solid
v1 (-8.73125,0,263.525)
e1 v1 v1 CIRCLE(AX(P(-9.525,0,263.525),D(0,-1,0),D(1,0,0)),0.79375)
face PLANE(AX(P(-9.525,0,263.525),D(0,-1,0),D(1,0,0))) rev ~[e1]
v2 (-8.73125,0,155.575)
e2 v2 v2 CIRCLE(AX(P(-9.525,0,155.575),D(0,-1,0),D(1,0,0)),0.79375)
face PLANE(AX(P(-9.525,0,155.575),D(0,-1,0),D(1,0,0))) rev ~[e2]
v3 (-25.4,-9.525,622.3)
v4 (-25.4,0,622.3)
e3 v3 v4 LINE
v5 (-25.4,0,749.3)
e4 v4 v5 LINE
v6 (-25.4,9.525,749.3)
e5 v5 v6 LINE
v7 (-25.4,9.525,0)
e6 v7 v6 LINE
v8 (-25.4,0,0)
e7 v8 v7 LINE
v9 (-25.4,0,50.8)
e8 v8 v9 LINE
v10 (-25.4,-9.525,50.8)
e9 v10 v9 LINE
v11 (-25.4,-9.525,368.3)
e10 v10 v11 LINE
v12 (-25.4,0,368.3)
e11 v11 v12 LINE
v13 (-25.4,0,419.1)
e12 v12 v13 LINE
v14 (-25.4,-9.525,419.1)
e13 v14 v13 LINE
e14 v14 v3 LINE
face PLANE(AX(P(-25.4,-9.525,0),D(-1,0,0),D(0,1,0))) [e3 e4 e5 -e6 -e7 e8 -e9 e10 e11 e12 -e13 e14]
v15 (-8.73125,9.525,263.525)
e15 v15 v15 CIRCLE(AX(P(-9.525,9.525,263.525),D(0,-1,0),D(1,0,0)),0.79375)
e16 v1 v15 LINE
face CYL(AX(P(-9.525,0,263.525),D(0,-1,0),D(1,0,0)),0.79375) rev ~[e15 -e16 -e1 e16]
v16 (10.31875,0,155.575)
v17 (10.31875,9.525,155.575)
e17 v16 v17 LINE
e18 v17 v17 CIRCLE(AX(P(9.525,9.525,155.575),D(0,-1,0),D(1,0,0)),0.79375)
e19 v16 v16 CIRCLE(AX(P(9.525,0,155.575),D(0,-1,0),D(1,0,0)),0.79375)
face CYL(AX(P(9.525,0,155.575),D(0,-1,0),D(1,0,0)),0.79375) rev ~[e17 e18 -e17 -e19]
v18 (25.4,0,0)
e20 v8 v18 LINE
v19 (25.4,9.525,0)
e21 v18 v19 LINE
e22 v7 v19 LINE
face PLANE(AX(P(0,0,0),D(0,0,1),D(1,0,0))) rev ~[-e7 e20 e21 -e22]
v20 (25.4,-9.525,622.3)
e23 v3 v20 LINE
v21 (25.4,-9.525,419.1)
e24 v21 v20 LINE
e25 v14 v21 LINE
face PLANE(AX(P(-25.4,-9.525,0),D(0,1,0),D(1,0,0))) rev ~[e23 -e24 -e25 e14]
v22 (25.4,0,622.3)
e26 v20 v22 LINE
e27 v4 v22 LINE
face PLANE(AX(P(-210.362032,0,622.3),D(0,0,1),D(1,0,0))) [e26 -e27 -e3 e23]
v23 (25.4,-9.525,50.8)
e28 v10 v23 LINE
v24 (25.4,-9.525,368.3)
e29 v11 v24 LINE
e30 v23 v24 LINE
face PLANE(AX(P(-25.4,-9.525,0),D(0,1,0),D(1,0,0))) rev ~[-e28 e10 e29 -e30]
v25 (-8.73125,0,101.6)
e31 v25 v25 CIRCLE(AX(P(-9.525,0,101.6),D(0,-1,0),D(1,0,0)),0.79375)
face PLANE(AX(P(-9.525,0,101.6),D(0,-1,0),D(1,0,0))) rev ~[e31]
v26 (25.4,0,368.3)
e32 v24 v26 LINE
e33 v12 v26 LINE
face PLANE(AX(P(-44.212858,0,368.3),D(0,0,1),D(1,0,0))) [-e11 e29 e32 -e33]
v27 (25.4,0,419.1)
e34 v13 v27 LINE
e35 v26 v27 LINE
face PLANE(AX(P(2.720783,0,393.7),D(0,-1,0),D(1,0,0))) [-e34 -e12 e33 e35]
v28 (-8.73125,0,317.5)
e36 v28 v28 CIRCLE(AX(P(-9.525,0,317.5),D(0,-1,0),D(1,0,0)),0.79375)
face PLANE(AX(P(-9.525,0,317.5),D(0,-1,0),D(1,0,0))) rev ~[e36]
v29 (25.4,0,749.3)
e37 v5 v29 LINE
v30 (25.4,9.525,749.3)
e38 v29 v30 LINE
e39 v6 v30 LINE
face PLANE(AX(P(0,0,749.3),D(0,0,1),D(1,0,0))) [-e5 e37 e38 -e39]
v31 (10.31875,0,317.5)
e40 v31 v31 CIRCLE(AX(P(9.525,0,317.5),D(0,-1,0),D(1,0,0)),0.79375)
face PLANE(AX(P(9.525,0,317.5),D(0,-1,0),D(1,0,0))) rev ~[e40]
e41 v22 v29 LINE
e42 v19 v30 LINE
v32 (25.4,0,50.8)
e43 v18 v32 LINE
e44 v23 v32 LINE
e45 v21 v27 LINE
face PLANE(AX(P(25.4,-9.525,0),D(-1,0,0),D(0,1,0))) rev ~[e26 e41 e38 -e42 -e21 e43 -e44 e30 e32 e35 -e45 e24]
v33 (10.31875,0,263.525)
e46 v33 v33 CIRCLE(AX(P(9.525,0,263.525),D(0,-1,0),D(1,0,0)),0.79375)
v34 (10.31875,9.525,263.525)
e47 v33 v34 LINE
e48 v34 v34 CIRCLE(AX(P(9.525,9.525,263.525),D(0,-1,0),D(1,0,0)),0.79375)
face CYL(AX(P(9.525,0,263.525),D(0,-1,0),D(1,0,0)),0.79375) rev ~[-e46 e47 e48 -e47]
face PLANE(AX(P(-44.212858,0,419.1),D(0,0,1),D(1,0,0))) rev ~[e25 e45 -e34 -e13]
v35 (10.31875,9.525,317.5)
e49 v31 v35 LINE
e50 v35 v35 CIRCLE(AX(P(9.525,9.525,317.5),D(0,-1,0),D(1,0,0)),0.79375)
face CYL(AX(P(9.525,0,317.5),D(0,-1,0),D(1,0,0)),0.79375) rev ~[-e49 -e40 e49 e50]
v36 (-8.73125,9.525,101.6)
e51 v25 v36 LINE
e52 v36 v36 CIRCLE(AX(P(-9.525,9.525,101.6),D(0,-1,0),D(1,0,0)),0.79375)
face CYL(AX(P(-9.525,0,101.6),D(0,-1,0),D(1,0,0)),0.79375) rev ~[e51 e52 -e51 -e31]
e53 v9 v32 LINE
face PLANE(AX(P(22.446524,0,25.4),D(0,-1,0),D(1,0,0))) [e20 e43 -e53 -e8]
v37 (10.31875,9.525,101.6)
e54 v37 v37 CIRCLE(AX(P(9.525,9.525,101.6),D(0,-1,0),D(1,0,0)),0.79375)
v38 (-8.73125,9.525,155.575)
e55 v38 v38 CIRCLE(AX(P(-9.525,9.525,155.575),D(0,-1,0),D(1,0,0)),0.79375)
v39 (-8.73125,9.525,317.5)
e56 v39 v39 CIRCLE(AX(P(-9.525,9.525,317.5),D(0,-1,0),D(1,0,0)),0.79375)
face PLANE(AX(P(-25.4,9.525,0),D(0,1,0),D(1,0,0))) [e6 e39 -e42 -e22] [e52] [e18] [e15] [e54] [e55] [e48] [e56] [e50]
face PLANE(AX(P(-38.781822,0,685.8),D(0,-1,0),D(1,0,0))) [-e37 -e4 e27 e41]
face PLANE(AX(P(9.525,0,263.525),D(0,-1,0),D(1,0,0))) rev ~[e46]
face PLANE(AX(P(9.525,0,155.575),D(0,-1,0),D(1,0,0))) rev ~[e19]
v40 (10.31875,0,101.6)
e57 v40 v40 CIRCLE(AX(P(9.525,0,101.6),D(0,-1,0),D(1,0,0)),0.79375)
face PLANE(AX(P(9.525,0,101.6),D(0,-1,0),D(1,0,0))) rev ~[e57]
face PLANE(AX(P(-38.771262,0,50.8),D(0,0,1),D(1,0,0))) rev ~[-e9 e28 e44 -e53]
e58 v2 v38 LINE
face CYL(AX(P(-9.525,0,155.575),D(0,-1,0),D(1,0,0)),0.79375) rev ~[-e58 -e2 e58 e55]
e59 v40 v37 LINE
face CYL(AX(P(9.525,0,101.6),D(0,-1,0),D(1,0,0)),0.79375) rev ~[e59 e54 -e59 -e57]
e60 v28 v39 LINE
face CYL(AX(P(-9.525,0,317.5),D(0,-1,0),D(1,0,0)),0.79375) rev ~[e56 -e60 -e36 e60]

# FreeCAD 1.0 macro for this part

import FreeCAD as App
import Part
import Sketcher
Q = App.Units.Quantity


def add_polygon(sketch, points):
    """Adds a closed chain of lines whose ends are joined by coincident constraints."""
    first, n = sketch.GeometryCount, len(points)
    for a, b in zip(points, points[1:] + points[:1]):
        sketch.addGeometry(Part.LineSegment(App.Vector(*a, 0), App.Vector(*b, 0)), False)
    for i in range(n):
        sketch.addConstraint(Sketcher.Constraint("Coincident", first + i, 2, first + (i + 1) % n, 1))

doc = App.newDocument("Part")
body = doc.addObject("PartDesign::Body", "Body")

sketch1 = body.newObject("Sketcher::SketchObject", "Sketch")
sketch1.AttachmentSupport = (doc.getObject("XY_Plane"), [""])
sketch1.MapMode = "FlatFace"
add_polygon(sketch1, [(-25, 10), (-25, -10), (25, -10), (25, 10)])
sketch1.addConstraint([
    Sketcher.Constraint("Vertical", 0),
    Sketcher.Constraint("Horizontal", 1),
    Sketcher.Constraint("Vertical", 2),
    Sketcher.Constraint("Horizontal", 3),
    Sketcher.Constraint("Symmetric", 0, 2, 2, 2, -1, 1),
    Sketcher.Constraint("DistanceX", 1, 1, 1, 2, Q("2 in")),
    Sketcher.Constraint("DistanceY", 0, 2, 0, 1, Q("0.75 in")),
])
pad1 = body.newObject("PartDesign::Pad", "Pad")
pad1.Profile = sketch1
pad1.Length = Q("29.5 in")

sketch2 = body.newObject("Sketcher::SketchObject", "Sketch001")
sketch2.AttachmentSupport = (doc.getObject("XZ_Plane"), [""])
sketch2.MapMode = "FlatFace"
add_polygon(sketch2, [(-39, 51), (-39, 0), (84, 0), (84, 51)])
add_polygon(sketch2, [(-44, 419), (-44, 368), (50, 368), (50, 419)])
add_polygon(sketch2, [(-210, 749), (-210, 622), (133, 622), (133, 749)])
sketch2.addConstraint([
    Sketcher.Constraint("Vertical", 0),
    Sketcher.Constraint("Horizontal", 1),
    Sketcher.Constraint("Vertical", 2),
    Sketcher.Constraint("Horizontal", 3),
    Sketcher.Constraint("Vertical", 4),
    Sketcher.Constraint("Horizontal", 5),
    Sketcher.Constraint("Vertical", 6),
    Sketcher.Constraint("Horizontal", 7),
    Sketcher.Constraint("Vertical", 8),
    Sketcher.Constraint("Horizontal", 9),
    Sketcher.Constraint("Vertical", 10),
    Sketcher.Constraint("Horizontal", 11),
    Sketcher.Constraint("PointOnObject", 0, 2, -1),
    Sketcher.Constraint("Equal", 2, 4),
    Sketcher.Constraint("DistanceY", 0, 2, 0, 1, Q("2 in")),
    Sketcher.Constraint("DistanceY", 8, 2, 8, 1, Q("5 in")),
    Sketcher.Constraint("DistanceY", 7, 2, 8, 2, Q("8 in")),
    Sketcher.Constraint("DistanceY", -1, 1, 4, 2, Q("14.5 in")),
    Sketcher.Constraint("DistanceX", 5, 1, 5, 2, 93.867282),
    Sketcher.Constraint("DistanceX", 9, 1, 9, 2, 343.160421),
    Sketcher.Constraint("DistanceX", 1, 1, 1, 2, 122.435573),
    Sketcher.Constraint("DistanceX", -1, 1, 1, 2, 83.66431),
    Sketcher.Constraint("DistanceX", -1, 1, 9, 2, 132.798388),
    Sketcher.Constraint("DistanceX", 4, 2, 2, 2, 127.877168),
])
pocket1 = body.newObject("PartDesign::Pocket", "Pocket")
pocket1.Profile = sketch2
pocket1.Length = Q("1 in")
pocket1.Reversed = True

sketch3 = body.newObject("Sketcher::SketchObject", "Sketch002")
sketch3.AttachmentSupport = (doc.getObject("XZ_Plane"), [""])
sketch3.MapMode = "FlatFace"
sketch3.addGeometry([
    Part.Circle(App.Vector(9.5, 101.6, 0), App.Vector(0, 0, 1), 0.8),
    Part.Circle(App.Vector(9.5, 155.6, 0), App.Vector(0, 0, 1), 0.8),
    Part.Circle(App.Vector(9.5, 263.5, 0), App.Vector(0, 0, 1), 0.8),
    Part.Circle(App.Vector(9.5, 317.5, 0), App.Vector(0, 0, 1), 0.8),
    Part.Circle(App.Vector(-9.5, 263.5, 0), App.Vector(0, 0, 1), 0.8),
    Part.Circle(App.Vector(-9.5, 317.5, 0), App.Vector(0, 0, 1), 0.8),
    Part.Circle(App.Vector(-9.5, 101.6, 0), App.Vector(0, 0, 1), 0.8),
    Part.Circle(App.Vector(-9.5, 155.6, 0), App.Vector(0, 0, 1), 0.8),
], False)
sketch3.addConstraint([
    Sketcher.Constraint("Equal", 0, 1),
    Sketcher.Constraint("Equal", 1, 2),
    Sketcher.Constraint("Equal", 2, 3),
    Sketcher.Constraint("Equal", 3, 4),
    Sketcher.Constraint("Equal", 4, 5),
    Sketcher.Constraint("Equal", 5, 6),
    Sketcher.Constraint("Equal", 6, 7),
    Sketcher.Constraint("Symmetric", 2, 3, 4, 3, -2),
    Sketcher.Constraint("Symmetric", 3, 3, 5, 3, -2),
    Sketcher.Constraint("Symmetric", 0, 3, 6, 3, -2),
    Sketcher.Constraint("Symmetric", 1, 3, 7, 3, -2),
    Sketcher.Constraint("Vertical", 0, 3, 1, 3),
    Sketcher.Constraint("Vertical", 1, 3, 2, 3),
    Sketcher.Constraint("Vertical", 2, 3, 3, 3),
    Sketcher.Constraint("Diameter", 0, Q("0.0625 in")),
    Sketcher.Constraint("DistanceY", -1, 1, 0, 3, Q("4 in")),
    Sketcher.Constraint("DistanceY", -1, 1, 3, 3, Q("12.5 in")),
    Sketcher.Constraint("DistanceY", 1, 3, 2, 3, Q("4.25 in")),
    Sketcher.Constraint("DistanceX", 4, 3, 2, 3, Q("0.75 in")),
    Sketcher.Constraint("DistanceY", -1, 1, 1, 3, Q("6.125 in")),
])
pocket2 = body.newObject("PartDesign::Pocket", "Pocket001")
pocket2.Profile = sketch3
pocket2.Length = Q("1 in")

doc.recompute()
